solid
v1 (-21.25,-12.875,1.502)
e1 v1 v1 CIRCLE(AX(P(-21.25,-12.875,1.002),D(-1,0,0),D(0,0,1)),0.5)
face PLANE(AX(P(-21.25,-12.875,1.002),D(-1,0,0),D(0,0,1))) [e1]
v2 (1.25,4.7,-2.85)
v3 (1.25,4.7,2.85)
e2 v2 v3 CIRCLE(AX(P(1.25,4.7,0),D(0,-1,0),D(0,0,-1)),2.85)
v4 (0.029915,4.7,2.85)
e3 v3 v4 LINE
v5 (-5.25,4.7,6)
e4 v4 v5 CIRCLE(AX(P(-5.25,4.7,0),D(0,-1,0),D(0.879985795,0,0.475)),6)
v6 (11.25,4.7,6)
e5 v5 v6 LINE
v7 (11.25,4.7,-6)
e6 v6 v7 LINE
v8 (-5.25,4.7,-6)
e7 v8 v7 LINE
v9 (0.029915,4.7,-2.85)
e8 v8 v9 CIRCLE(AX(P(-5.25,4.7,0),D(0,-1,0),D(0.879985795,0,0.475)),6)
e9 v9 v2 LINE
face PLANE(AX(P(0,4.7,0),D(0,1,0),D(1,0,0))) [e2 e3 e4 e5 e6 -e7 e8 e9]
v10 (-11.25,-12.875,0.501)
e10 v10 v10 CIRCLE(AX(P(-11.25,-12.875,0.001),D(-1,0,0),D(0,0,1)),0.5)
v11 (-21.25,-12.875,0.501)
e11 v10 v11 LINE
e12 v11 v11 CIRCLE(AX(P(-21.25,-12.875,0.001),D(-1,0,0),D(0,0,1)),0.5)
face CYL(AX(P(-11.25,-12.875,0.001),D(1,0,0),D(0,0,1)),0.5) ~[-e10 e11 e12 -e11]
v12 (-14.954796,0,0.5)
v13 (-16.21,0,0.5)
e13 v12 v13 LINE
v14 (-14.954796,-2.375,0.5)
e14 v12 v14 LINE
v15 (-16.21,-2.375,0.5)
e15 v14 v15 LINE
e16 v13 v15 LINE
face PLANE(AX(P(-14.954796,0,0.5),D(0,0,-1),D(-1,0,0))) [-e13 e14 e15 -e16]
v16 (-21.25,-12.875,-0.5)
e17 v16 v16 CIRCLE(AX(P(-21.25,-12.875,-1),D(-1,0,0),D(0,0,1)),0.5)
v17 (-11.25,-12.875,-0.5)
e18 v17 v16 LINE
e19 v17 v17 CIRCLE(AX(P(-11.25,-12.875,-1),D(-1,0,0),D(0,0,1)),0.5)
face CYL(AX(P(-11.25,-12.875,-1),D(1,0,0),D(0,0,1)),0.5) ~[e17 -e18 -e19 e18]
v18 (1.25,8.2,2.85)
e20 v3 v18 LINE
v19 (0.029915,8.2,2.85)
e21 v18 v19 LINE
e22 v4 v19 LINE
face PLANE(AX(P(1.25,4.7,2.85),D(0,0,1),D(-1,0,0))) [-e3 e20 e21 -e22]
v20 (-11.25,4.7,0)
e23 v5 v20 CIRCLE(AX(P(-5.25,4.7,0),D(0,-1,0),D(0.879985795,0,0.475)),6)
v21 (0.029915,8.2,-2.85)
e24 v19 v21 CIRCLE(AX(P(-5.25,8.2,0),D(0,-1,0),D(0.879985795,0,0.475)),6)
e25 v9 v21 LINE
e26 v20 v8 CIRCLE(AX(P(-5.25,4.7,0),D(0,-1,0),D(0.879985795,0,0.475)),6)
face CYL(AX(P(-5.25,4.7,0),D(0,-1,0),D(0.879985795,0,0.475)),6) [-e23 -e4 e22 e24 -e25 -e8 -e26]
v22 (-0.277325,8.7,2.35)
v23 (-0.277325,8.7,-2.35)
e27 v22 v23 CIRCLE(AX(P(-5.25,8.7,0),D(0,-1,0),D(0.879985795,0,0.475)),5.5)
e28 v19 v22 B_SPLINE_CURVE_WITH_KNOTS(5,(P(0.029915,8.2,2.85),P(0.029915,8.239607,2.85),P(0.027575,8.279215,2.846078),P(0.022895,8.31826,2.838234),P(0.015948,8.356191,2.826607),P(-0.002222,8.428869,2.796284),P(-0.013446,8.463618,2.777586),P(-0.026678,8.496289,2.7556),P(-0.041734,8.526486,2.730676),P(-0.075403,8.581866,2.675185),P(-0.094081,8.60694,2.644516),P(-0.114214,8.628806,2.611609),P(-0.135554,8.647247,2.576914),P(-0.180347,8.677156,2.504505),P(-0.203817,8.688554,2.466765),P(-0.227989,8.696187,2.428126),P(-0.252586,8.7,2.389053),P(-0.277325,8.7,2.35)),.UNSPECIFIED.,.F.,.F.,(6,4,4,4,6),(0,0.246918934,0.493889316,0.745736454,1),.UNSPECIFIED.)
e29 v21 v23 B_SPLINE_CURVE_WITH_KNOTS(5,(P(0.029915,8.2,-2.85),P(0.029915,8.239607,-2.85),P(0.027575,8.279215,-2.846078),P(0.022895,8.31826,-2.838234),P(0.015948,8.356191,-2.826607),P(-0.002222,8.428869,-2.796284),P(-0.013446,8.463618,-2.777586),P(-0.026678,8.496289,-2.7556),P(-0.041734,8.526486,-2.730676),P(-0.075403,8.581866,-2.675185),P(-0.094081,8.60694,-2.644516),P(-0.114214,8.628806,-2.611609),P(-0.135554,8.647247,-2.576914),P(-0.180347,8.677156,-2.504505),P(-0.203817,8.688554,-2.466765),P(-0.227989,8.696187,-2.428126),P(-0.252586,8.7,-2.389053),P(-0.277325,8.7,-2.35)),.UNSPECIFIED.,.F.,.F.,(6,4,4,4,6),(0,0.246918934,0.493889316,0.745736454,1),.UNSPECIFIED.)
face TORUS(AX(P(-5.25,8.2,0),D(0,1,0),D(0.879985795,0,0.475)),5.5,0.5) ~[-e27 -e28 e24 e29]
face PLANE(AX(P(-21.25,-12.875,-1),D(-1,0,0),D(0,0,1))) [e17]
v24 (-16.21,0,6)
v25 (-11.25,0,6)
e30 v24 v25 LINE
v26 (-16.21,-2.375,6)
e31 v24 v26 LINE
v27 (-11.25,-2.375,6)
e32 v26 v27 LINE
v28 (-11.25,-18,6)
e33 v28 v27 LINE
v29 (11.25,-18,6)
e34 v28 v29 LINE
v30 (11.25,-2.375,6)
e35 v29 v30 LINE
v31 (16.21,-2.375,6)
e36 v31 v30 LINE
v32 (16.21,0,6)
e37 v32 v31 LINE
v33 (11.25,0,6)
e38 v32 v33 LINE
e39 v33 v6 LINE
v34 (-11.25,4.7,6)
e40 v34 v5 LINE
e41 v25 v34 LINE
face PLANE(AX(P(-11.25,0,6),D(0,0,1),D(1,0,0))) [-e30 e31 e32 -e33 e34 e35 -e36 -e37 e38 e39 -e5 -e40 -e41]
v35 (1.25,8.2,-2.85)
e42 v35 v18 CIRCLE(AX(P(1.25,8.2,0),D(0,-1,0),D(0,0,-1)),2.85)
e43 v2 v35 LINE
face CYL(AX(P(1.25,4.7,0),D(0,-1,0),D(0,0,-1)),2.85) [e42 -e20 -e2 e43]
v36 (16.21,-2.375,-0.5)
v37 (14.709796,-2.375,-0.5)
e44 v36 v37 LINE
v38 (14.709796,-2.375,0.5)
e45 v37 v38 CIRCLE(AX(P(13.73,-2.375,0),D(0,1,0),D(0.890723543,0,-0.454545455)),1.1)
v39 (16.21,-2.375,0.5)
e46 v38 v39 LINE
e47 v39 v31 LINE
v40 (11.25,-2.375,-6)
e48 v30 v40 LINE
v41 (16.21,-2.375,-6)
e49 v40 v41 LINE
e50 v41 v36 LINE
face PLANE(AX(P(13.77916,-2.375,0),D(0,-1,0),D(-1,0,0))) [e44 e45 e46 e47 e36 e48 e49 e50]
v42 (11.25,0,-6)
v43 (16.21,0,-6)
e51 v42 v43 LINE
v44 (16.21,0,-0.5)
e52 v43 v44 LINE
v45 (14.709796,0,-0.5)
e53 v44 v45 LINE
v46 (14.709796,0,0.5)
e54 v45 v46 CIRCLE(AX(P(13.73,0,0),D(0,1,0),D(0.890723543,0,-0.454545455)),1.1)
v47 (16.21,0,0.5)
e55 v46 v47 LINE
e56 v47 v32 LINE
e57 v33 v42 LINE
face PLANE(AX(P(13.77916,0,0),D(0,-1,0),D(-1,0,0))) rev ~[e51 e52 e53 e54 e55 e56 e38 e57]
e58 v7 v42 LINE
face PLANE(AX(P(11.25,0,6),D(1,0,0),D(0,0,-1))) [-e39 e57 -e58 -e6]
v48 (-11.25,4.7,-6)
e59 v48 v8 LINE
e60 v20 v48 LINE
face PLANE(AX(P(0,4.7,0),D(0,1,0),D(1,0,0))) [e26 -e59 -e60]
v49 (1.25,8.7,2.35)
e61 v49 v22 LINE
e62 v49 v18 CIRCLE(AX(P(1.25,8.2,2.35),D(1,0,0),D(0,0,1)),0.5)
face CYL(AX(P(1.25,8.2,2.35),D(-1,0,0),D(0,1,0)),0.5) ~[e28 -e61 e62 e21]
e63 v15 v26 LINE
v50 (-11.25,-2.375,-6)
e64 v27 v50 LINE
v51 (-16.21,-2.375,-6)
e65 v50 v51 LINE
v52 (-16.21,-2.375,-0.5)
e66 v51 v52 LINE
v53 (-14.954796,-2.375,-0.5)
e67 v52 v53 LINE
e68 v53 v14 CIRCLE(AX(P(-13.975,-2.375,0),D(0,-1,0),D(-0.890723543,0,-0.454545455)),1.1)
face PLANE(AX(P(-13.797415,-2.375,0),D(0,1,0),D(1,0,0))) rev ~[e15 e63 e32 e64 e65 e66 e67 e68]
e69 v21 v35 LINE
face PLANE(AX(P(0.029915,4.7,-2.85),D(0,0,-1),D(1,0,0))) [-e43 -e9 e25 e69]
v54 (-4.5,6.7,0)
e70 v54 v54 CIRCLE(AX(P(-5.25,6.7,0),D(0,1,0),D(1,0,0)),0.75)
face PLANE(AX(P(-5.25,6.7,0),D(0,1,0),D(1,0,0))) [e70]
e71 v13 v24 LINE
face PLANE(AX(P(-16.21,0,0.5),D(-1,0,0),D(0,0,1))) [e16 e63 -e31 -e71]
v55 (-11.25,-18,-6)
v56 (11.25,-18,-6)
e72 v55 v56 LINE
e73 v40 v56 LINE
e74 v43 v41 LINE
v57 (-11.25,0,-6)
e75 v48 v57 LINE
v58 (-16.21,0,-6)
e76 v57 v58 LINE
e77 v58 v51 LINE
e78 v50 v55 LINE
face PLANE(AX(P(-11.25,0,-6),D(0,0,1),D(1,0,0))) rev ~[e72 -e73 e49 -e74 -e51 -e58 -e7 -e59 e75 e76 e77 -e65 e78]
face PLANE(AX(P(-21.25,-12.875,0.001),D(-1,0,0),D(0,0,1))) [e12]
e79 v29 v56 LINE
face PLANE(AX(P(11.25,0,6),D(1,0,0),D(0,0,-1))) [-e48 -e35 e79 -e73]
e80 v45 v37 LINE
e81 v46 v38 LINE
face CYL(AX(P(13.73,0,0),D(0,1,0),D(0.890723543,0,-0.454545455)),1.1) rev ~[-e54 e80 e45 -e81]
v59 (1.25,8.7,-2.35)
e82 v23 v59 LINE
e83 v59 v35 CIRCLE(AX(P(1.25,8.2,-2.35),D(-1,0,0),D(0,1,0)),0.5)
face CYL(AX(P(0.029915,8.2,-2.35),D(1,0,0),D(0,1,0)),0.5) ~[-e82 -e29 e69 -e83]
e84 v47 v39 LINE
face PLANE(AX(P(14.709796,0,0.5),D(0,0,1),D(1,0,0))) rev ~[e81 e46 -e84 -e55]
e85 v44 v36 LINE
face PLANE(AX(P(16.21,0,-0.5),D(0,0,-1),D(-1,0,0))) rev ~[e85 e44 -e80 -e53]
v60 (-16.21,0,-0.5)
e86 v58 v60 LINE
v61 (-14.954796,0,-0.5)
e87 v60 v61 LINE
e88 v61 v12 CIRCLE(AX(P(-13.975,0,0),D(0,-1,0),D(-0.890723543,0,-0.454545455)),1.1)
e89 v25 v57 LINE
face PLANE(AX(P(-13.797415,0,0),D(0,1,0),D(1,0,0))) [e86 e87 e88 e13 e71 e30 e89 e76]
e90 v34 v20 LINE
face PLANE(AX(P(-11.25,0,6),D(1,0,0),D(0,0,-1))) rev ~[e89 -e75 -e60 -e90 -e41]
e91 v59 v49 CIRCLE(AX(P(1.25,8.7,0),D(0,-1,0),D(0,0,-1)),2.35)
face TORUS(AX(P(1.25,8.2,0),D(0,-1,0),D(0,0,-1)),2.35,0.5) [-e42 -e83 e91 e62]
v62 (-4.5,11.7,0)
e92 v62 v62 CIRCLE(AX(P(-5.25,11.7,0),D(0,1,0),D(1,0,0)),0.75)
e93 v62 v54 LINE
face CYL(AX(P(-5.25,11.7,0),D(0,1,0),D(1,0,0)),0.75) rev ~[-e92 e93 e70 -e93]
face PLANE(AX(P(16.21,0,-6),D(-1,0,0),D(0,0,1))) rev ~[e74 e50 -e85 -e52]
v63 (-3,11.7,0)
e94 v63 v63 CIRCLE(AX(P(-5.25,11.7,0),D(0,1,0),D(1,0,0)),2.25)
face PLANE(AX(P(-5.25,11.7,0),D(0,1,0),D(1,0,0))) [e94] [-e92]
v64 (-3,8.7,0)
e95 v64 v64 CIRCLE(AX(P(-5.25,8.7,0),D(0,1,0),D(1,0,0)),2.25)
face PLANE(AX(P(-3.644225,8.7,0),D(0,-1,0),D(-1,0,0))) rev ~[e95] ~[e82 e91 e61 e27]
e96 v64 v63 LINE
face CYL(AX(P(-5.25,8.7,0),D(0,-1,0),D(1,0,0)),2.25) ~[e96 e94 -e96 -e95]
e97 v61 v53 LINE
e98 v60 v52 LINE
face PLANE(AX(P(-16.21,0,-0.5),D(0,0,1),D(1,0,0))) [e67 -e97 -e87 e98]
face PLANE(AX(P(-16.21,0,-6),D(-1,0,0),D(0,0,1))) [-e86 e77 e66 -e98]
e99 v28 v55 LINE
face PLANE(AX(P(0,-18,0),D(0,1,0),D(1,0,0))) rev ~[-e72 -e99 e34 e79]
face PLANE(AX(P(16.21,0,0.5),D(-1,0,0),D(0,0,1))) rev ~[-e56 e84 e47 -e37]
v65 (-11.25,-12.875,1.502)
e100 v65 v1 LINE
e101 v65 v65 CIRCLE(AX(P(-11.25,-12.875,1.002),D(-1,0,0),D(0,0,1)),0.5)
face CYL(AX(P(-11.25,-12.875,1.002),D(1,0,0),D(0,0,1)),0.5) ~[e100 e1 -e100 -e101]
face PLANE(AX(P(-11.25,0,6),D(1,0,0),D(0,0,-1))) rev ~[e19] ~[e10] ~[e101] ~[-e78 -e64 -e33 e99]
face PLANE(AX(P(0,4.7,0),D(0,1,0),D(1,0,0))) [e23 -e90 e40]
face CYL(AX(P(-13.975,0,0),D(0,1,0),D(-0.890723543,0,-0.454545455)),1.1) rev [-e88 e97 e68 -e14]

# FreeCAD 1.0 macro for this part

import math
import FreeCAD as App
import Part
import Sketcher

V = App.Vector


def edges_at(feature, points):
    """Names of the edges that pass closest to the given points."""
    edges = feature.Shape.Edges
    near = lambda p: min(range(len(edges)), key=lambda i: edges[i].distToShape(Part.Vertex(*p))[0])
    return sorted({f"Edge{near(p) + 1}" for p in points})

doc = App.newDocument("Part")
body = doc.addObject("PartDesign::Body", "Body")

# Sketch on XZ plane
sketch1 = body.newObject("Sketcher::SketchObject", "Sketch")
sketch1.AttachmentSupport = (doc.getObject("XZ_Plane"), [""])
sketch1.MapMode = "FlatFace"
sketch1.addGeometry([
    Part.LineSegment(V(-11, -6, 0), V(-11, 6, 0)),
    Part.LineSegment(V(-11, 6, 0), V(11, 6, 0)),
    Part.LineSegment(V(11, 6, 0), V(11, -6, 0)),
    Part.LineSegment(V(11, -6, 0), V(-11, -6, 0)),
], False)
sketch1.addConstraint([
    Sketcher.Constraint("Coincident", 0, 2, 1, 1),
    Sketcher.Constraint("Coincident", 1, 2, 2, 1),
    Sketcher.Constraint("Coincident", 2, 2, 3, 1),
    Sketcher.Constraint("Coincident", 3, 2, 0, 1),
    Sketcher.Constraint("Vertical", 0),
    Sketcher.Constraint("Horizontal", 1),
    Sketcher.Constraint("Vertical", 2),
    Sketcher.Constraint("Horizontal", 3),
    Sketcher.Constraint("Symmetric", 0, 2, 2, 2, -1, 1),
    Sketcher.Constraint("DistanceY", 0, 1, 0, 2, 12.0),
    Sketcher.Constraint("DistanceX", 1, 1, 1, 2, 22.5),
])
pad1 = body.newObject("PartDesign::Pad", "Pad")
pad1.Profile = sketch1
pad1.Type = "TwoLengths"
pad1.Length = 4.7
pad1.Length2 = 18
pad1.Reversed = True

# Sketch on XZ plane
sketch2 = body.newObject("Sketcher::SketchObject", "Sketch001")
sketch2.AttachmentSupport = (doc.getObject("XZ_Plane"), [""])
sketch2.MapMode = "FlatFace"
sketch2.addGeometry([
    Part.LineSegment(V(-11.2, -6, 0), V(-16.2, -6, 0)),  # 0
    Part.LineSegment(V(-16.2, -6, 0), V(-16.2, -0.5, 0)),  # 1
    Part.LineSegment(V(-16.2, -0.5, 0), V(-15, -0.5, 0)),  # 2
    Part.ArcOfCircle(Part.Circle(V(-14, 0, 0), V(0, 0, 1), 1.1), math.radians(-153), math.radians(153)),  # 3
    Part.LineSegment(V(-15, 0.5, 0), V(-16.2, 0.5, 0)),  # 4
    Part.LineSegment(V(-16.2, 0.5, 0), V(-16.2, 6, 0)),  # 5
    Part.LineSegment(V(-16.2, 6, 0), V(-11.2, 6, 0)),  # 6
    Part.LineSegment(V(-11.2, 6, 0), V(-11.2, -6, 0)),  # 7
    Part.LineSegment(V(16.2, -6, 0), V(11.2, -6, 0)),  # 8
    Part.LineSegment(V(11.2, -6, 0), V(11.2, 6, 0)),  # 9
    Part.LineSegment(V(11.2, 6, 0), V(16.2, 6, 0)),  # 10
    Part.LineSegment(V(16.2, 6, 0), V(16.2, 0.5, 0)),  # 11
    Part.LineSegment(V(16.2, 0.5, 0), V(14.7, 0.5, 0)),  # 12
    Part.ArcOfCircle(Part.Circle(V(13.7, 0, 0), V(0, 0, 1), 1.1), math.radians(27), math.radians(333)),  # 13
    Part.LineSegment(V(14.7, -0.5, 0), V(16.2, -0.5, 0)),  # 14
    Part.LineSegment(V(16.2, -0.5, 0), V(16.2, -6, 0)),  # 15
], False)
sketch2.addConstraint([
    Sketcher.Constraint("Coincident", 0, 2, 1, 1),
    Sketcher.Constraint("Coincident", 1, 2, 2, 1),
    Sketcher.Constraint("Coincident", 2, 2, 3, 1),
    Sketcher.Constraint("Coincident", 3, 2, 4, 1),
    Sketcher.Constraint("Coincident", 4, 2, 5, 1),
    Sketcher.Constraint("Coincident", 5, 2, 6, 1),
    Sketcher.Constraint("Coincident", 6, 2, 7, 1),
    Sketcher.Constraint("Coincident", 7, 2, 0, 1),
    Sketcher.Constraint("Coincident", 8, 2, 9, 1),
    Sketcher.Constraint("Coincident", 9, 2, 10, 1),
    Sketcher.Constraint("Coincident", 10, 2, 11, 1),
    Sketcher.Constraint("Coincident", 11, 2, 12, 1),
    Sketcher.Constraint("Coincident", 12, 2, 13, 1),
    Sketcher.Constraint("Coincident", 13, 2, 14, 1),
    Sketcher.Constraint("Coincident", 14, 2, 15, 1),
    Sketcher.Constraint("Coincident", 15, 2, 8, 1),
    Sketcher.Constraint("Horizontal", 0),
    Sketcher.Constraint("Vertical", 1),
    Sketcher.Constraint("Horizontal", 2),
    Sketcher.Constraint("Horizontal", 4),
    Sketcher.Constraint("Vertical", 5),
    Sketcher.Constraint("Horizontal", 6),
    Sketcher.Constraint("Vertical", 7),
    Sketcher.Constraint("Horizontal", 8),
    Sketcher.Constraint("Vertical", 9),
    Sketcher.Constraint("Horizontal", 10),
    Sketcher.Constraint("Vertical", 11),
    Sketcher.Constraint("Horizontal", 12),
    Sketcher.Constraint("Horizontal", 14),
    Sketcher.Constraint("Vertical", 15),
    Sketcher.Constraint("Equal", 3, 13),
    Sketcher.Constraint("Symmetric", 6, 2, 8, 2, -1, 1),
    Sketcher.Constraint("Symmetric", 0, 2, 10, 2, -1, 1),
    Sketcher.Constraint("Symmetric", 4, 2, 14, 2, -1, 1),
    Sketcher.Constraint("Symmetric", 5, 2, 10, 2, -2),
    Sketcher.Constraint("Symmetric", 2, 2, 3, 2, -1),
    Sketcher.Constraint("Symmetric", 12, 2, 13, 2, -1),
    Sketcher.Constraint("Radius", 3, 1.1),
    Sketcher.Constraint("DistanceY", 7, 2, 7, 1, 12.0),
    Sketcher.Constraint("DistanceY", 1, 1, 1, 2, 5.5),
    Sketcher.Constraint("DistanceX", 0, 2, 0, 1, 4.96),
    Sketcher.Constraint("DistanceX", 7, 2, 8, 2, 22.5),
    Sketcher.Constraint("DistanceX", -1, 1, 13, 3, 13.73),
    Sketcher.Constraint("DistanceX", 3, 3, -1, 1, 13.975),
])
pad2 = body.newObject("PartDesign::Pad", "Pad001")
pad2.Profile = sketch2
pad2.Length = 2.375

# Sketch on XZ plane
sketch3 = body.newObject("Sketcher::SketchObject", "Sketch002")
sketch3.AttachmentSupport = (doc.getObject("XZ_Plane"), [""])
sketch3.MapMode = "FlatFace"
sketch3.AttachmentOffset = App.Placement(V(0, 0, -4.7), App.Rotation())
sketch3.addGeometry([
    Part.LineSegment(V(1.2, -2.9, 0), V(0, -2.9, 0)),
    Part.ArcOfCircle(Part.Circle(V(-5.2, 0, 0), V(0, 0, 1), 6), math.radians(28), math.radians(332)),
    Part.LineSegment(V(0, 2.9, 0), V(1.2, 2.9, 0)),
    Part.ArcOfCircle(Part.Circle(V(1.2, 0, 0), V(0, 0, 1), 2.9), math.radians(-90), math.radians(90)),
], False)
sketch3.addConstraint([
    Sketcher.Constraint("Coincident", 0, 2, 1, 2),
    Sketcher.Constraint("Coincident", 1, 1, 2, 1),
    Sketcher.Constraint("Tangent", 2, 2, 3, 2),
    Sketcher.Constraint("Tangent", 3, 1, 0, 1),
    Sketcher.Constraint("Horizontal", 0),
    Sketcher.Constraint("Horizontal", 2),
    Sketcher.Constraint("Symmetric", 0, 2, 1, 1, -1),
    Sketcher.Constraint("Radius", 1, 6.0),
    Sketcher.Constraint("Radius", 3, 2.85),
    Sketcher.Constraint("DistanceX", 1, 3, 3, 3, 6.5),
    Sketcher.Constraint("DistanceX", 1, 3, -1, 1, 5.25),
])
pad3 = body.newObject("PartDesign::Pad", "Pad002")
pad3.Profile = sketch3
pad3.Length = 4
pad3.Reversed = True

# Sketch on XZ plane
sketch4 = body.newObject("Sketcher::SketchObject", "Sketch003")
sketch4.AttachmentSupport = (doc.getObject("XZ_Plane"), [""])
sketch4.MapMode = "FlatFace"
sketch4.AttachmentOffset = App.Placement(V(0, 0, -8.7), App.Rotation())
sketch4.addGeometry(Part.Circle(V(-5.2, 0, 0), V(0, 0, 1), 2.2), False)
sketch4.addConstraint([
    Sketcher.Constraint("PointOnObject", 0, 3, -1),
    Sketcher.Constraint("Diameter", 0, 4.5),
    Sketcher.Constraint("DistanceX", 0, 3, -1, 1, 5.25),
])
pad4 = body.newObject("PartDesign::Pad", "Pad003")
pad4.Profile = sketch4
pad4.Length = 3
pad4.Reversed = True

# Sketch on XZ plane
sketch5 = body.newObject("Sketcher::SketchObject", "Sketch004")
sketch5.AttachmentSupport = (doc.getObject("XZ_Plane"), [""])
sketch5.MapMode = "FlatFace"
sketch5.AttachmentOffset = App.Placement(V(0, 0, -11.7), App.Rotation())
sketch5.addGeometry(Part.Circle(V(-5.2, 0, 0), V(0, 0, 1), 0.8), False)
sketch5.addConstraint([
    Sketcher.Constraint("PointOnObject", 0, 3, -1),
    Sketcher.Constraint("Diameter", 0, 1.5),
    Sketcher.Constraint("DistanceX", 0, 3, -1, 1, 5.25),
])
pocket1 = body.newObject("PartDesign::Pocket", "Pocket")
pocket1.Profile = sketch5
pocket1.Length = 5
pocket1.Reversed = True
doc.recompute()

fillet = body.newObject("PartDesign::Fillet", "Fillet")
fillet.Base = (pocket1, edges_at(pocket1, [
    (-11.25, 8.7, 0),
    (0.64, 8.7, 2.85),
    (4.1, 8.7, 0),
    (0.64, 8.7, -2.85),
]))
fillet.Radius = 0.5

# Sketch on YZ plane
sketch6 = body.newObject("Sketcher::SketchObject", "Sketch005")
sketch6.AttachmentSupport = (doc.getObject("YZ_Plane"), [""])
sketch6.MapMode = "FlatFace"
sketch6.AttachmentOffset = App.Placement(V(0, 0, -11.25), App.Rotation())
sketch6.addGeometry(Part.Circle(V(-12.9, -1, 0), V(0, 0, 1), 0.5), False)
sketch6.addConstraint([
    Sketcher.Constraint("Diameter", 0, 1.0),
    Sketcher.Constraint("DistanceY", 0, 3, -1, 1, 1.0),
    Sketcher.Constraint("DistanceX", 0, 3, -1, 1, 12.875),
])
pad5 = body.newObject("PartDesign::Pad", "Pad004")
pad5.Profile = sketch6
pad5.Length = 10
pad5.Reversed = True
doc.recompute()

linearpattern = body.newObject("PartDesign::LinearPattern", "LinearPattern")
linearpattern.Originals = [pad5]
linearpattern.Direction = (doc.getObject("Z_Axis"), [""])
linearpattern.Mode = "offset"
linearpattern.Offset = 1.001
linearpattern.Occurrences = 3
body.Tip = linearpattern

doc.recompute()
